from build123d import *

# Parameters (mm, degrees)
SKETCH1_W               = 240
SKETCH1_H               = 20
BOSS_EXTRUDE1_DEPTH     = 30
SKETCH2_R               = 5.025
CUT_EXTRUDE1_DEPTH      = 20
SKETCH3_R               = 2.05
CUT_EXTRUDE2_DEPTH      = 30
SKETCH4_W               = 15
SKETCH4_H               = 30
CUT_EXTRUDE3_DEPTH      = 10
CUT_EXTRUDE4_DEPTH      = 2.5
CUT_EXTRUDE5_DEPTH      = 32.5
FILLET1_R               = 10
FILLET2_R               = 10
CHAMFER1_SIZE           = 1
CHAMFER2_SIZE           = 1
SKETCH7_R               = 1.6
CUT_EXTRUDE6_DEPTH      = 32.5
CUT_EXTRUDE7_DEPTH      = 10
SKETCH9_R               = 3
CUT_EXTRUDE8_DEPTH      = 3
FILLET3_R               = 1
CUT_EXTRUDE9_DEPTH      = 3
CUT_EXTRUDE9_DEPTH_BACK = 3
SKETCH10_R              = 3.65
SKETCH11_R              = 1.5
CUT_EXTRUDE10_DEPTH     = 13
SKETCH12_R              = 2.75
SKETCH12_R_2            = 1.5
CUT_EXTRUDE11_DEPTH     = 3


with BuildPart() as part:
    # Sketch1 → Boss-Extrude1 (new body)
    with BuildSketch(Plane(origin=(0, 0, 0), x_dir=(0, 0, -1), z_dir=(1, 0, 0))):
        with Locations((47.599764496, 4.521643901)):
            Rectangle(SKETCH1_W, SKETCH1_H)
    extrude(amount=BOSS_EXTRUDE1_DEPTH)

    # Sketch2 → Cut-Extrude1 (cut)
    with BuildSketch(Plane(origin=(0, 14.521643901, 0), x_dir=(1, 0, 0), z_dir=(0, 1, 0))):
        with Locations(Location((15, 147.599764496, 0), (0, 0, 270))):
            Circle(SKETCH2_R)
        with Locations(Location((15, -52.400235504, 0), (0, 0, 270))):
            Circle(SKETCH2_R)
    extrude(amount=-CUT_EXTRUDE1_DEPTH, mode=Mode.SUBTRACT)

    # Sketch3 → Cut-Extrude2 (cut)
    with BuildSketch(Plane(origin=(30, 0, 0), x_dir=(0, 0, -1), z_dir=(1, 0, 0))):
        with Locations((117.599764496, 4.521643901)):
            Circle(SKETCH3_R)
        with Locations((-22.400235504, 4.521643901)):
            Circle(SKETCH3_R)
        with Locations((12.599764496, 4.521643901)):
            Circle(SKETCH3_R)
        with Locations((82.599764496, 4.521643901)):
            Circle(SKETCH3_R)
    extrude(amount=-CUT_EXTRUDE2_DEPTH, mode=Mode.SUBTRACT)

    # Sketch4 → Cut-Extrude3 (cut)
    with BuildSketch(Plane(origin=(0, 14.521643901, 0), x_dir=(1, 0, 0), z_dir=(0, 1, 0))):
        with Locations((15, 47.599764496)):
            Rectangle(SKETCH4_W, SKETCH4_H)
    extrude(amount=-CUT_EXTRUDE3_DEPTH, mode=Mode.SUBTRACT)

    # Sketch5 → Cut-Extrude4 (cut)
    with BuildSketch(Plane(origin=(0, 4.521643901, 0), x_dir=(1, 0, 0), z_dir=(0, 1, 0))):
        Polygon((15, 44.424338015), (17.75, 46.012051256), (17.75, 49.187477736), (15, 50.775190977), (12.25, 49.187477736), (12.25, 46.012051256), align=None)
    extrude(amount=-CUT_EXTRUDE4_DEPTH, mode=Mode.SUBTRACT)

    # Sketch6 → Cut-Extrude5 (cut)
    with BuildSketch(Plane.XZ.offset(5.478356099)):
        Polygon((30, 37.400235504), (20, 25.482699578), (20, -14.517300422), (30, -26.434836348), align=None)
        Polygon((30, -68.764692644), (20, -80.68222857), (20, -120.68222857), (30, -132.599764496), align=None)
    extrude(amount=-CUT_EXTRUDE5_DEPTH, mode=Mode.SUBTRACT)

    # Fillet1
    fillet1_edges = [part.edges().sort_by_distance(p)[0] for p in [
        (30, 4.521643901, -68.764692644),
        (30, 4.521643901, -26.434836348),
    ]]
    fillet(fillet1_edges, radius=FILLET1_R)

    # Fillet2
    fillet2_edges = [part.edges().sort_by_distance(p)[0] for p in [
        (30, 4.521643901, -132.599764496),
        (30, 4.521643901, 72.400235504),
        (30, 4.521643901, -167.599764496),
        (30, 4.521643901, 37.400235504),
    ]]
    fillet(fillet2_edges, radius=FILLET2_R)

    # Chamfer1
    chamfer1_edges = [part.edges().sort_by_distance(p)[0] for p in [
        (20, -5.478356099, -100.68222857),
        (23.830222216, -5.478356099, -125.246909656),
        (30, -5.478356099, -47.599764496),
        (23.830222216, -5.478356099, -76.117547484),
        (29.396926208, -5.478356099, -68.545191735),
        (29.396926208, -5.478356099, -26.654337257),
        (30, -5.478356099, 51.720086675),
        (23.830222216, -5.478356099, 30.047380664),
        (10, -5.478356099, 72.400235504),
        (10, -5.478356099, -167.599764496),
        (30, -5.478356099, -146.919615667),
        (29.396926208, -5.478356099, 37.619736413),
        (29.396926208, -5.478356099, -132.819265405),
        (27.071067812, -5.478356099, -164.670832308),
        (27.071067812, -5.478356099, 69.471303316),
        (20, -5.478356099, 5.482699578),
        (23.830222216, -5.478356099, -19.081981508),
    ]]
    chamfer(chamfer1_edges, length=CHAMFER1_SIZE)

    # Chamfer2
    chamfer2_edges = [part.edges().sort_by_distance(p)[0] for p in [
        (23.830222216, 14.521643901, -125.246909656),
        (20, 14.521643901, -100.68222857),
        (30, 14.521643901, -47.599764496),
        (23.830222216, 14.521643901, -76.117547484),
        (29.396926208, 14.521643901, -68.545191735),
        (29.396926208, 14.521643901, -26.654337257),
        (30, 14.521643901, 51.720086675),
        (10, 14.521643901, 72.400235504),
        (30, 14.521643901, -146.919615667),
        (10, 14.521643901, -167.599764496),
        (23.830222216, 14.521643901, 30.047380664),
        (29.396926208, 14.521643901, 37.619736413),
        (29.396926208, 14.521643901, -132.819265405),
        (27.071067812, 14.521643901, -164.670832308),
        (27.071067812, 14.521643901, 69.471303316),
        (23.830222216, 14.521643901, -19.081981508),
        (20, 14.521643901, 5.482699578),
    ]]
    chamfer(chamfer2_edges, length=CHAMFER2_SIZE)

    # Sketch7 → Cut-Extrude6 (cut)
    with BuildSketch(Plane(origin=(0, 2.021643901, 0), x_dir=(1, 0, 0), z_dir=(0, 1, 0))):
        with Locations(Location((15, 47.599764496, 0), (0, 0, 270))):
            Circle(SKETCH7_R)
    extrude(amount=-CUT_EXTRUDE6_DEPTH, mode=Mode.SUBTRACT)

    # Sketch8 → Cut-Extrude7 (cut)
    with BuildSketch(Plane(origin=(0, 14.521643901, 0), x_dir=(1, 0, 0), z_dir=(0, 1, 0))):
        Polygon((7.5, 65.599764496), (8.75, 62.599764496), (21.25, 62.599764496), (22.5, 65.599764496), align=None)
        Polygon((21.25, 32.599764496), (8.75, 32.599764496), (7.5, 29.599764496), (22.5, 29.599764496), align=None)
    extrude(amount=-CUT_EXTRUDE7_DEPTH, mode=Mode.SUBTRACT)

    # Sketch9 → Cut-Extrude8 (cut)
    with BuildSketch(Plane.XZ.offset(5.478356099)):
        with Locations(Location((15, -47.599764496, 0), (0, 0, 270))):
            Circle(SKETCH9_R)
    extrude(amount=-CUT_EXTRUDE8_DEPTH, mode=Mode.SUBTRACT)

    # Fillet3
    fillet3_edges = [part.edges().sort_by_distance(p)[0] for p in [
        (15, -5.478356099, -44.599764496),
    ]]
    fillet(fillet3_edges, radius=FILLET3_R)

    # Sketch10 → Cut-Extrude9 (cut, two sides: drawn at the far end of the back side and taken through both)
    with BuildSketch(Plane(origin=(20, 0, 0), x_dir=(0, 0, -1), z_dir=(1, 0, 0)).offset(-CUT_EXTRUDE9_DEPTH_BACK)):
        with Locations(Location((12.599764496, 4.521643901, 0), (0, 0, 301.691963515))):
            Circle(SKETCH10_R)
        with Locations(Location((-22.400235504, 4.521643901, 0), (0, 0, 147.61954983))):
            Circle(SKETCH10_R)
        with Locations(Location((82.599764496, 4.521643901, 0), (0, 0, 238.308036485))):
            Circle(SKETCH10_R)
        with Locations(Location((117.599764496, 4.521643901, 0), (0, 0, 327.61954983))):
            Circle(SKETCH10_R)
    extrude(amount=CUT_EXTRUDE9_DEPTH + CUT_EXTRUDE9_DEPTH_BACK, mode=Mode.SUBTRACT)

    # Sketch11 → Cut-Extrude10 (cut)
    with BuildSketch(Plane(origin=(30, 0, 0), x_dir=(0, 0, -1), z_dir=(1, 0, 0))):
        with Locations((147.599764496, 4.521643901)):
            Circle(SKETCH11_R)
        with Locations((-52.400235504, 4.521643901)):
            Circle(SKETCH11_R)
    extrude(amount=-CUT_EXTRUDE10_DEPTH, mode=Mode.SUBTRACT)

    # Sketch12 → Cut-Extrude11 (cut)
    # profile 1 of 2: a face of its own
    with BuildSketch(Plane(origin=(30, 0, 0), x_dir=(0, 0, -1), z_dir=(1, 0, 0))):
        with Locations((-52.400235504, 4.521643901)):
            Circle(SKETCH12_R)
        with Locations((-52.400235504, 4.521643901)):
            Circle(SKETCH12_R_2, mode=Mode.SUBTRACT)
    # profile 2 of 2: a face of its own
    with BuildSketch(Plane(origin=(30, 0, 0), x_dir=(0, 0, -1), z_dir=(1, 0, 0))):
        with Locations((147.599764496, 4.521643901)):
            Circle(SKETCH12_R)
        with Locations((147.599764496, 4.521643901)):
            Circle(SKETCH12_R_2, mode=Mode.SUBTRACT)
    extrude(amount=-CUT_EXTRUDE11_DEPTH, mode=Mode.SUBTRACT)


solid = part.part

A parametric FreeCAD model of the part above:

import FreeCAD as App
import Part
import Sketcher
Q = App.Units.Quantity


def edges_at(feature, points):
    """Names of the edges that pass closest to the given points."""
    edges = feature.Shape.Edges
    near = lambda p: min(range(len(edges)), key=lambda i: edges[i].distToShape(Part.Vertex(*p))[0])
    return sorted({f"Edge{near(p) + 1}" for p in points})


def add_polygon(sketch, points):
    """Adds a closed chain of lines whose ends are joined by coincident constraints."""
    first, n = sketch.GeometryCount, len(points)
    for a, b in zip(points, points[1:] + points[:1]):
        sketch.addGeometry(Part.LineSegment(App.Vector(*a, 0), App.Vector(*b, 0)), False)
    for i in range(n):
        sketch.addConstraint(Sketcher.Constraint("Coincident", first + i, 2, first + (i + 1) % n, 1))

doc = App.newDocument("Part")
params = doc.addObject("Spreadsheet::Sheet", "Params")
for row, (alias, value) in enumerate([
    ("sketch1_width", "20 mm"),
    ("sketch1_height", "240 mm"),
    ("pad1_length", "30 mm"),
    ("sketch2_diameter", "10.05 mm"),
    ("pocket1_length", "20 mm"),
    ("sketch3_diameter", "4.1 mm"),
    ("pocket2_length", "30 mm"),
    ("sketch4_width", "15 mm"),
    ("sketch4_height", "30 mm"),
    ("pocket3_length", "10 mm"),
    ("pocket4_length", "2.5 mm"),
    ("sketch6_height", "40 mm"),
    ("pocket5_length", "32.5 mm"),
    ("fillet_radius", "10 mm"),
    ("fillet2_radius", "10 mm"),
    ("chamfer_size", "1 mm"),
    ("chamfer2_size", "1 mm"),
    ("sketch7_diameter", "3.2 mm"),
    ("pocket6_length", "32.5 mm"),
    ("sketch8_width", "15 mm"),
    ("sketch8_width2", "12.5 mm"),
    ("pocket7_length", "10 mm"),
    ("sketch9_diameter", "6 mm"),
    ("pocket8_length", "3 mm"),
    ("fillet3_radius", "1 mm"),
    ("sketch10_diameter", "7.3 mm"),
    ("pocket9_length", "3 mm"),
    ("pocket9_length2", "3 mm"),
    ("sketch11_diameter", "3 mm"),
    ("pocket10_length", "13 mm"),
    ("sketch12_diameter", "3 mm"),
    ("sketch12_diameter2", "5.5 mm"),
    ("pocket11_length", "3 mm"),
], start=1):
    params.set(f"A{row}", alias)
    params.set(f"B{row}", "=" + value)
    params.setAlias(f"B{row}", alias)

body = doc.addObject("PartDesign::Body", "Body")

# Sketch on YZ plane
sketch1 = body.newObject("Sketcher::SketchObject", "Sketch")
sketch1.AttachmentSupport = (doc.getObject("YZ_Plane"), [""])
sketch1.MapMode = "FlatFace"
add_polygon(sketch1, [(15, 72), (-5, 72), (-5, -168), (15, -168)])  # lines 0-3
sketch1.addConstraint([
    Sketcher.Constraint("Horizontal", 0),
    Sketcher.Constraint("Vertical", 1),
    Sketcher.Constraint("Horizontal", 2),
    Sketcher.Constraint("Vertical", 3),
    Sketcher.Constraint("DistanceX", 0, 2, 0, 1, 20.0),
    Sketcher.Constraint("DistanceY", 1, 2, 1, 1, 240.0),
    Sketcher.Constraint("DistanceX", 0, 2, -1, 1, 5.478356),
    Sketcher.Constraint("DistanceY", -1, 1, 0, 2, 72.400236),
])
sketch1.setExpression("Constraints[8]", "Params.sketch1_width")
sketch1.setExpression("Constraints[9]", "Params.sketch1_height")
pad1 = body.newObject("PartDesign::Pad", "Pad")
pad1.Profile = sketch1
pad1.setExpression("Length", "Params.pad1_length")

# Sketch on XZ plane
sketch2 = body.newObject("Sketcher::SketchObject", "Sketch001")
sketch2.AttachmentSupport = (doc.getObject("XZ_Plane"), [""])
sketch2.MapMode = "FlatFace"
sketch2.AttachmentOffset = App.Placement(App.Vector(0, 0, -14.521644), App.Rotation())
sketch2.addGeometry([
    Part.Circle(App.Vector(15, -148, 0), App.Vector(0, 0, 1), 5),
    Part.Circle(App.Vector(15, 52, 0), App.Vector(0, 0, 1), 5),
], False)
sketch2.addConstraint([
    Sketcher.Constraint("Equal", 0, 1),
    Sketcher.Constraint("Vertical", 0, 3, 1, 3),
    Sketcher.Constraint("Diameter", 0, 10.05),
    Sketcher.Constraint("DistanceX", -1, 1, 0, 3, 15.0),
    Sketcher.Constraint("DistanceY", 0, 3, 1, 3, 200.0),
    Sketcher.Constraint("DistanceY", 0, 3, -1, 1, 147.599764),
])
sketch2.setExpression("Constraints[2]", "Params.sketch2_diameter")
pocket1 = body.newObject("PartDesign::Pocket", "Pocket")
pocket1.Profile = sketch2
pocket1.setExpression("Length", "Params.pocket1_length")
pocket1.Reversed = True

# Sketch on YZ plane
sketch3 = body.newObject("Sketcher::SketchObject", "Sketch002")
sketch3.AttachmentSupport = (doc.getObject("YZ_Plane"), [""])
sketch3.MapMode = "FlatFace"
sketch3.AttachmentOffset = App.Placement(App.Vector(0, 0, 30), App.Rotation())
sketch3.addGeometry([
    Part.Circle(App.Vector(4.5, -117.6, 0), App.Vector(0, 0, 1), 2),
    Part.Circle(App.Vector(4.5, 22.4, 0), App.Vector(0, 0, 1), 2),
    Part.Circle(App.Vector(4.5, -12.6, 0), App.Vector(0, 0, 1), 2),
    Part.Circle(App.Vector(4.5, -82.6, 0), App.Vector(0, 0, 1), 2),
], False)
sketch3.addConstraint([
    Sketcher.Constraint("Equal", 0, 1),
    Sketcher.Constraint("Equal", 1, 2),
    Sketcher.Constraint("Equal", 2, 3),
    Sketcher.Constraint("Vertical", 0, 3, 1, 3),
    Sketcher.Constraint("Vertical", 1, 3, 2, 3),
    Sketcher.Constraint("Vertical", 2, 3, 3, 3),
    Sketcher.Constraint("Diameter", 0, 4.1),
    Sketcher.Constraint("DistanceY", 0, 3, 1, 3, 140.0),
    Sketcher.Constraint("DistanceY", 2, 3, 1, 3, 35.0),
    Sketcher.Constraint("DistanceY", 0, 3, 3, 3, 35.0),
    Sketcher.Constraint("DistanceX", -1, 1, 0, 3, 4.521644),
    Sketcher.Constraint("DistanceY", 0, 3, -1, 1, 117.599764),
])
sketch3.setExpression("Constraints[6]", "Params.sketch3_diameter")
pocket2 = body.newObject("PartDesign::Pocket", "Pocket001")
pocket2.Profile = sketch3
pocket2.setExpression("Length", "Params.pocket2_length")

# Sketch on XZ plane
sketch4 = body.newObject("Sketcher::SketchObject", "Sketch003")
sketch4.AttachmentSupport = (doc.getObject("XZ_Plane"), [""])
sketch4.MapMode = "FlatFace"
sketch4.AttachmentOffset = App.Placement(App.Vector(0, 0, -14.521644), App.Rotation())
add_polygon(sketch4, [(8, -63), (8, -33), (22, -33), (22, -63)])  # lines 0-3
sketch4.addConstraint([
    Sketcher.Constraint("Vertical", 0),
    Sketcher.Constraint("Horizontal", 1),
    Sketcher.Constraint("Vertical", 2),
    Sketcher.Constraint("Horizontal", 3),
    Sketcher.Constraint("DistanceX", 1, 1, 1, 2, 15.0),
    Sketcher.Constraint("DistanceY", 0, 1, 0, 2, 30.0),
    Sketcher.Constraint("DistanceX", -1, 1, 0, 2, 7.5),
    Sketcher.Constraint("DistanceY", 0, 2, -1, 1, 32.599764),
])
sketch4.setExpression("Constraints[8]", "Params.sketch4_width")
sketch4.setExpression("Constraints[9]", "Params.sketch4_height")
pocket3 = body.newObject("PartDesign::Pocket", "Pocket002")
pocket3.Profile = sketch4
pocket3.setExpression("Length", "Params.pocket3_length")
pocket3.Reversed = True

# Sketch on XZ plane
sketch5 = body.newObject("Sketcher::SketchObject", "Sketch004")
sketch5.AttachmentSupport = (doc.getObject("XZ_Plane"), [""])
sketch5.MapMode = "FlatFace"
sketch5.AttachmentOffset = App.Placement(App.Vector(0, 0, -4.521644), App.Rotation())
add_polygon(sketch5, [(15, -44.4), (17.8, -46), (17.8, -49.2), (15, -50.8), (12.2, -49.2), (12.2, -46)])  # lines 0-5
sketch5.addConstraint([
    Sketcher.Constraint("Vertical", 1),
    Sketcher.Constraint("Vertical", 4),
    Sketcher.Constraint("Parallel", 0, 3),
    Sketcher.Constraint("Parallel", 2, 5),
    Sketcher.Constraint("Horizontal", 1, 2, 3, 2),
    Sketcher.Constraint("Horizontal", 0, 2, 4, 2),
    Sketcher.Constraint("Vertical", 2, 2, 5, 2),
    Sketcher.Constraint("Angle", 0, Q("-30 deg")),
    Sketcher.Constraint("DistanceX", -1, 1, 2, 2, 15.0),
    Sketcher.Constraint("DistanceX", 3, 2, 1, 2, 5.5),
    Sketcher.Constraint("DistanceY", 1, 2, 1, 1, 3.175426),
    Sketcher.Constraint("DistanceY", 0, 2, -1, 1, 46.012051),
])
pocket4 = body.newObject("PartDesign::Pocket", "Pocket003")
pocket4.Profile = sketch5
pocket4.setExpression("Length", "Params.pocket4_length")
pocket4.Reversed = True

# Sketch on XZ plane
sketch6 = body.newObject("Sketcher::SketchObject", "Sketch005")
sketch6.AttachmentSupport = (doc.getObject("XZ_Plane"), [""])
sketch6.MapMode = "FlatFace"
sketch6.AttachmentOffset = App.Placement(App.Vector(0, 0, 5.478356), App.Rotation())
add_polygon(sketch6, [(30, 37), (20, 25), (20, -15), (30, -26)])  # lines 0-3
add_polygon(sketch6, [(30, -69), (20, -81), (20, -121), (30, -133)])  # lines 4-7
sketch6.addConstraint([
    Sketcher.Constraint("Vertical", 1),
    Sketcher.Constraint("Vertical", 3),
    Sketcher.Constraint("Vertical", 5),
    Sketcher.Constraint("Vertical", 7),
    Sketcher.Constraint("Parallel", 0, 4),
    Sketcher.Constraint("Parallel", 2, 6),
    Sketcher.Constraint("Vertical", 1, 2, 4, 2),
    Sketcher.Constraint("Vertical", 3, 2, 6, 2),
    Sketcher.Constraint("Equal", 1, 5),
    Sketcher.Constraint("Equal", 0, 2),
    Sketcher.Constraint("DistanceY", 1, 2, 1, 1, 40.0),
    Sketcher.Constraint("Angle", 0, Q("-130 deg")),
    Sketcher.Constraint("DistanceX", -1, 1, 0, 2, 20.0),
    Sketcher.Constraint("DistanceX", -1, 1, 2, 2, 30.0),
    Sketcher.Constraint("DistanceY", -1, 1, 0, 2, 25.4827),
    Sketcher.Constraint("DistanceY", 4, 2, -1, 1, 80.682229),
])
sketch6.setExpression("Constraints[18]", "Params.sketch6_height")
pocket5 = body.newObject("PartDesign::Pocket", "Pocket004")
pocket5.Profile = sketch6
pocket5.setExpression("Length", "Params.pocket5_length")
doc.recompute()

fillet = body.newObject("PartDesign::Fillet", "Fillet")
fillet.Base = (pocket5, edges_at(pocket5, [(30, 4.522, -68.765), (30, 4.522, -26.435)]))
fillet.setExpression("Radius", "Params.fillet_radius")
doc.recompute()

fillet2 = body.newObject("PartDesign::Fillet", "Fillet001")
fillet2.Base = (fillet, edges_at(fillet, [
    (30, 4.522, -132.6),
    (30, 4.522, 72.4),
    (30, 4.522, -167.6),
    (30, 4.522, 37.4),
]))
fillet2.setExpression("Radius", "Params.fillet2_radius")
doc.recompute()

chamfer = body.newObject("PartDesign::Chamfer", "Chamfer")
chamfer.Base = (fillet2, edges_at(fillet2, [
    (20, -5.478, -100.682),
    (23.83, -5.478, -125.247),
    (30, -5.478, -47.6),
    (23.83, -5.478, -76.118),
    (29.397, -5.478, -68.545),
    (29.397, -5.478, -26.654),
    (30, -5.478, 51.72),
    (23.83, -5.478, 30.047),
    (10, -5.478, 72.4),
    (10, -5.478, -167.6),
    (30, -5.478, -146.92),
    (29.397, -5.478, 37.62),
    (29.397, -5.478, -132.819),
    (27.071, -5.478, -164.671),
    (27.071, -5.478, 69.471),
    (20, -5.478, 5.483),
    (23.83, -5.478, -19.082),
]))
chamfer.setExpression("Size", "Params.chamfer_size")
doc.recompute()

chamfer2 = body.newObject("PartDesign::Chamfer", "Chamfer001")
chamfer2.Base = (chamfer, edges_at(chamfer, [
    (23.83, 14.522, -125.247),
    (20, 14.522, -100.682),
    (30, 14.522, -47.6),
    (23.83, 14.522, -76.118),
    (29.397, 14.522, -68.545),
    (29.397, 14.522, -26.654),
    (30, 14.522, 51.72),
    (10, 14.522, 72.4),
    (30, 14.522, -146.92),
    (10, 14.522, -167.6),
    (23.83, 14.522, 30.047),
    (29.397, 14.522, 37.62),
    (29.397, 14.522, -132.819),
    (27.071, 14.522, -164.671),
    (27.071, 14.522, 69.471),
    (23.83, 14.522, -19.082),
    (20, 14.522, 5.483),
]))
chamfer2.setExpression("Size", "Params.chamfer2_size")

# Sketch on XZ plane
sketch7 = body.newObject("Sketcher::SketchObject", "Sketch006")
sketch7.AttachmentSupport = (doc.getObject("XZ_Plane"), [""])
sketch7.MapMode = "FlatFace"
sketch7.AttachmentOffset = App.Placement(App.Vector(0, 0, -2.021644), App.Rotation())
sketch7.addGeometry(Part.Circle(App.Vector(15, -47.6, 0), App.Vector(0, 0, 1), 1.6), False)
sketch7.addConstraint([
    Sketcher.Constraint("Diameter", 0, 3.2),
    Sketcher.Constraint("DistanceX", -1, 1, 0, 3, 15.0),
    Sketcher.Constraint("DistanceY", 0, 3, -1, 1, 47.599764),
])
sketch7.setExpression("Constraints[0]", "Params.sketch7_diameter")
pocket6 = body.newObject("PartDesign::Pocket", "Pocket005")
pocket6.Profile = sketch7
pocket6.setExpression("Length", "Params.pocket6_length")
pocket6.Reversed = True

# Sketch on XZ plane
sketch8 = body.newObject("Sketcher::SketchObject", "Sketch007")
sketch8.AttachmentSupport = (doc.getObject("XZ_Plane"), [""])
sketch8.MapMode = "FlatFace"
sketch8.AttachmentOffset = App.Placement(App.Vector(0, 0, -14.521644), App.Rotation())
add_polygon(sketch8, [(7.5, -65.6), (8.8, -62.6), (21.2, -62.6), (22.5, -65.6)])  # lines 0-3
add_polygon(sketch8, [(21.2, -32.6), (8.8, -32.6), (7.5, -29.6), (22.5, -29.6)])  # lines 4-7
sketch8.addConstraint([
    Sketcher.Constraint("Horizontal", 1),
    Sketcher.Constraint("Horizontal", 3),
    Sketcher.Constraint("Horizontal", 4),
    Sketcher.Constraint("Horizontal", 6),
    Sketcher.Constraint("Parallel", 2, 5),
    Sketcher.Constraint("Parallel", 0, 7),
    Sketcher.Constraint("Vertical", 0, 2, 4, 2),
    Sketcher.Constraint("Vertical", 3, 2, 5, 2),
    Sketcher.Constraint("Vertical", 2, 2, 6, 2),
    Sketcher.Constraint("Vertical", 1, 2, 7, 2),
    Sketcher.Constraint("DistanceX", 3, 2, 3, 1, 15.0),
    Sketcher.Constraint("DistanceX", 1, 1, 1, 2, 12.5),
    Sketcher.Constraint("DistanceY", 2, 2, 1, 2, 3.0),
    Sketcher.Constraint("DistanceY", 0, 2, 4, 2, 30.0),
    Sketcher.Constraint("DistanceX", -1, 1, 2, 2, 22.5),
    Sketcher.Constraint("DistanceY", 0, 2, -1, 1, 62.599764),
])
sketch8.setExpression("Constraints[18]", "Params.sketch8_width")
sketch8.setExpression("Constraints[19]", "Params.sketch8_width2")
pocket7 = body.newObject("PartDesign::Pocket", "Pocket006")
pocket7.Profile = sketch8
pocket7.setExpression("Length", "Params.pocket7_length")
pocket7.Reversed = True

# Sketch on XZ plane
sketch9 = body.newObject("Sketcher::SketchObject", "Sketch008")
sketch9.AttachmentSupport = (doc.getObject("XZ_Plane"), [""])
sketch9.MapMode = "FlatFace"
sketch9.AttachmentOffset = App.Placement(App.Vector(0, 0, 5.478356), App.Rotation())
sketch9.addGeometry(Part.Circle(App.Vector(15, -47.6, 0), App.Vector(0, 0, 1), 3), False)
sketch9.addConstraint([
    Sketcher.Constraint("Diameter", 0, 6.0),
    Sketcher.Constraint("DistanceX", -1, 1, 0, 3, 15.0),
    Sketcher.Constraint("DistanceY", 0, 3, -1, 1, 47.599764),
])
sketch9.setExpression("Constraints[0]", "Params.sketch9_diameter")
pocket8 = body.newObject("PartDesign::Pocket", "Pocket007")
pocket8.Profile = sketch9
pocket8.setExpression("Length", "Params.pocket8_length")
doc.recompute()

fillet3 = body.newObject("PartDesign::Fillet", "Fillet002")
fillet3.Base = (pocket8, edges_at(pocket8, [(15, -5.478, -44.6)]))
fillet3.setExpression("Radius", "Params.fillet3_radius")

# Sketch on YZ plane
sketch10 = body.newObject("Sketcher::SketchObject", "Sketch009")
sketch10.AttachmentSupport = (doc.getObject("YZ_Plane"), [""])
sketch10.MapMode = "FlatFace"
sketch10.AttachmentOffset = App.Placement(App.Vector(0, 0, 20), App.Rotation())
sketch10.addGeometry([
    Part.Circle(App.Vector(4.5, -12.6, 0), App.Vector(0, 0, 1), 3.6),
    Part.Circle(App.Vector(4.5, 22.4, 0), App.Vector(0, 0, 1), 3.6),
    Part.Circle(App.Vector(4.5, -82.6, 0), App.Vector(0, 0, 1), 3.6),
    Part.Circle(App.Vector(4.5, -117.6, 0), App.Vector(0, 0, 1), 3.6),
], False)
sketch10.addConstraint([
    Sketcher.Constraint("Equal", 0, 1),
    Sketcher.Constraint("Equal", 1, 2),
    Sketcher.Constraint("Equal", 2, 3),
    Sketcher.Constraint("Vertical", 0, 3, 1, 3),
    Sketcher.Constraint("Vertical", 1, 3, 2, 3),
    Sketcher.Constraint("Vertical", 2, 3, 3, 3),
    Sketcher.Constraint("Diameter", 0, 7.3),
    Sketcher.Constraint("DistanceY", 0, 3, 1, 3, 35.0),
    Sketcher.Constraint("DistanceY", 2, 3, 0, 3, 70.0),
    Sketcher.Constraint("DistanceY", 3, 3, 2, 3, 35.0),
    Sketcher.Constraint("DistanceX", -1, 1, 0, 3, 4.521644),
    Sketcher.Constraint("DistanceY", 0, 3, -1, 1, 12.599764),
])
sketch10.setExpression("Constraints[6]", "Params.sketch10_diameter")
pocket9 = body.newObject("PartDesign::Pocket", "Pocket008")
pocket9.Profile = sketch10
pocket9.Type = "TwoLengths"
pocket9.setExpression("Length", "Params.pocket9_length")
pocket9.setExpression("Length2", "Params.pocket9_length2")
pocket9.Reversed = True

# Sketch on YZ plane
sketch11 = body.newObject("Sketcher::SketchObject", "Sketch010")
sketch11.AttachmentSupport = (doc.getObject("YZ_Plane"), [""])
sketch11.MapMode = "FlatFace"
sketch11.AttachmentOffset = App.Placement(App.Vector(0, 0, 30), App.Rotation())
sketch11.addGeometry([
    Part.Circle(App.Vector(4.5, -147.6, 0), App.Vector(0, 0, 1), 1.5),
    Part.Circle(App.Vector(4.5, 52.4, 0), App.Vector(0, 0, 1), 1.5),
], False)
sketch11.addConstraint([
    Sketcher.Constraint("Equal", 0, 1),
    Sketcher.Constraint("Vertical", 0, 3, 1, 3),
    Sketcher.Constraint("Diameter", 0, 3.0),
    Sketcher.Constraint("DistanceY", 0, 3, 1, 3, 200.0),
    Sketcher.Constraint("DistanceX", -1, 1, 0, 3, 4.521644),
    Sketcher.Constraint("DistanceY", 0, 3, -1, 1, 147.599764),
])
sketch11.setExpression("Constraints[2]", "Params.sketch11_diameter")
pocket10 = body.newObject("PartDesign::Pocket", "Pocket009")
pocket10.Profile = sketch11
pocket10.setExpression("Length", "Params.pocket10_length")

# Sketch on YZ plane
sketch12 = body.newObject("Sketcher::SketchObject", "Sketch011")
sketch12.AttachmentSupport = (doc.getObject("YZ_Plane"), [""])
sketch12.MapMode = "FlatFace"
sketch12.AttachmentOffset = App.Placement(App.Vector(0, 0, 30), App.Rotation())
sketch12.addGeometry([
    Part.Circle(App.Vector(4.5, 52.4, 0), App.Vector(0, 0, 1), 2.8),
    Part.Circle(App.Vector(4.5, 52.4, 0), App.Vector(0, 0, 1), 1.5),
    Part.Circle(App.Vector(4.5, -147.6, 0), App.Vector(0, 0, 1), 2.8),
    Part.Circle(App.Vector(4.5, -147.6, 0), App.Vector(0, 0, 1), 1.5),
], False)
sketch12.addConstraint([
    Sketcher.Constraint("Coincident", 1, 3, 0, 3),
    Sketcher.Constraint("Coincident", 3, 3, 2, 3),
    Sketcher.Constraint("Equal", 0, 2),
    Sketcher.Constraint("Equal", 1, 3),
    Sketcher.Constraint("Vertical", 1, 3, 2, 3),
    Sketcher.Constraint("Diameter", 1, 3.0),
    Sketcher.Constraint("Diameter", 0, 5.5),
    Sketcher.Constraint("DistanceY", 2, 3, 0, 3, 200.0),
    Sketcher.Constraint("DistanceX", -1, 1, 0, 3, 4.521644),
    Sketcher.Constraint("DistanceY", -1, 1, 0, 3, 52.400236),
])
sketch12.setExpression("Constraints[5]", "Params.sketch12_diameter")
sketch12.setExpression("Constraints[6]", "Params.sketch12_diameter2")
pocket11 = body.newObject("PartDesign::Pocket", "Pocket010")
pocket11.Profile = sketch12
pocket11.setExpression("Length", "Params.pocket11_length")

doc.recompute()
